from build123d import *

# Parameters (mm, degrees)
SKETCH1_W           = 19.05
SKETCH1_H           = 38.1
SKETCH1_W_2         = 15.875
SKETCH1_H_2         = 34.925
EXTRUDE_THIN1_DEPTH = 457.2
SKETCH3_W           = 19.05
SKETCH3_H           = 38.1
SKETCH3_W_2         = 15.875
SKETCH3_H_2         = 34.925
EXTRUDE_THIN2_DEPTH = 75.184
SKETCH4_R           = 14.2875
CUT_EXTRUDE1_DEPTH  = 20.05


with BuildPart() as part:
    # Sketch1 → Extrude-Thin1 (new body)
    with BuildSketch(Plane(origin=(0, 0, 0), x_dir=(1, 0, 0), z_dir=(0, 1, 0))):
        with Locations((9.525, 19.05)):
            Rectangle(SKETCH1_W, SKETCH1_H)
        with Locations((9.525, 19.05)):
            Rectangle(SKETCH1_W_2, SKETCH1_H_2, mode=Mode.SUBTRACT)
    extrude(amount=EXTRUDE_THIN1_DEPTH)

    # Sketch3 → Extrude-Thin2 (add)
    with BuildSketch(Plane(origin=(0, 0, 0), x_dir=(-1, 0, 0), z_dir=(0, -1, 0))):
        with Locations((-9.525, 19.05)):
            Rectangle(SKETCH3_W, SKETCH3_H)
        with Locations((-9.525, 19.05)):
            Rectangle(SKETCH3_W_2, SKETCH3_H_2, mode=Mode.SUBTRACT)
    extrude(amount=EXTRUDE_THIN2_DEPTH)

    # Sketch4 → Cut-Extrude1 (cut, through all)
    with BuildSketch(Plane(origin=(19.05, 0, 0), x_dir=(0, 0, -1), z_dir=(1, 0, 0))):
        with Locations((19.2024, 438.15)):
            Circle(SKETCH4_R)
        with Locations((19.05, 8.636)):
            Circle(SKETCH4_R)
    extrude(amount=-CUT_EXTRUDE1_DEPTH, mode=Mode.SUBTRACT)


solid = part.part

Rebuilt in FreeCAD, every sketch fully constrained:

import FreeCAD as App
import Part
import Sketcher

V = App.Vector
Q = App.Units.Quantity

doc = App.newDocument("Part")
body = doc.addObject("PartDesign::Body", "Body")

# Sketch on XZ plane
sketch1 = doc.addObject("Sketcher::SketchObject", "Sketch")
body.addObject(sketch1)
sketch1.AttachmentSupport = (doc.XZ_Plane, [""])
sketch1.MapMode = "FlatFace"
sketch1.addGeometry(Part.LineSegment(V(0, -38, 0), V(0, 0, 0)), False)
sketch1.addGeometry(Part.LineSegment(V(0, 0, 0), V(19, 0, 0)), False)
sketch1.addGeometry(Part.LineSegment(V(19, 0, 0), V(19, -38, 0)), False)
sketch1.addGeometry(Part.LineSegment(V(19, -38, 0), V(0, -38, 0)), False)
sketch1.addGeometry(Part.LineSegment(V(17, -2, 0), V(2, -2, 0)), False)
sketch1.addGeometry(Part.LineSegment(V(2, -2, 0), V(2, -37, 0)), False)
sketch1.addGeometry(Part.LineSegment(V(2, -37, 0), V(17, -37, 0)), False)
sketch1.addGeometry(Part.LineSegment(V(17, -37, 0), V(17, -2, 0)), False)
sketch1.addConstraint(Sketcher.Constraint("Coincident", 0, 2, 1, 1))
sketch1.addConstraint(Sketcher.Constraint("Coincident", 1, 2, 2, 1))
sketch1.addConstraint(Sketcher.Constraint("Coincident", 2, 2, 3, 1))
sketch1.addConstraint(Sketcher.Constraint("Coincident", 3, 2, 0, 1))
sketch1.addConstraint(Sketcher.Constraint("Coincident", 4, 2, 5, 1))
sketch1.addConstraint(Sketcher.Constraint("Coincident", 5, 2, 6, 1))
sketch1.addConstraint(Sketcher.Constraint("Coincident", 6, 2, 7, 1))
sketch1.addConstraint(Sketcher.Constraint("Coincident", 7, 2, 4, 1))
sketch1.addConstraint(Sketcher.Constraint("Vertical", 0))
sketch1.addConstraint(Sketcher.Constraint("Horizontal", 1))
sketch1.addConstraint(Sketcher.Constraint("Vertical", 2))
sketch1.addConstraint(Sketcher.Constraint("Horizontal", 3))
sketch1.addConstraint(Sketcher.Constraint("Horizontal", 4))
sketch1.addConstraint(Sketcher.Constraint("Vertical", 5))
sketch1.addConstraint(Sketcher.Constraint("Horizontal", 6))
sketch1.addConstraint(Sketcher.Constraint("Vertical", 7))
sketch1.addConstraint(Sketcher.Constraint("Coincident", 0, 2, -1, 1))
sketch1.addConstraint(Sketcher.Constraint("DistanceY", 0, 1, 0, 2, Q("1.5 in")))
sketch1.addConstraint(Sketcher.Constraint("DistanceX", 1, 1, 1, 2, Q("0.75 in")))
sketch1.addConstraint(Sketcher.Constraint("DistanceX", 4, 2, 4, 1, Q("0.625 in")))
sketch1.addConstraint(Sketcher.Constraint("DistanceY", 5, 2, 5, 1, Q("1.375 in")))
sketch1.addConstraint(Sketcher.Constraint("DistanceX", -1, 1, 4, 2, Q("0.0625 in")))
sketch1.addConstraint(Sketcher.Constraint("DistanceY", 4, 2, -1, 1, Q("0.0625 in")))
pad1 = doc.addObject("PartDesign::Pad", "Pad")
body.addObject(pad1)
pad1.Profile = sketch1
pad1.Length = Q("18 in")
pad1.Reversed = True

# Sketch on XZ plane
sketch2 = doc.addObject("Sketcher::SketchObject", "Sketch001")
body.addObject(sketch2)
sketch2.AttachmentSupport = (doc.XZ_Plane, [""])
sketch2.MapMode = "FlatFace"
sketch2.addGeometry(Part.LineSegment(V(19, -38, 0), V(19, 0, 0)), False)
sketch2.addGeometry(Part.LineSegment(V(19, 0, 0), V(0, 0, 0)), False)
sketch2.addGeometry(Part.LineSegment(V(0, 0, 0), V(0, -38, 0)), False)
sketch2.addGeometry(Part.LineSegment(V(0, -38, 0), V(19, -38, 0)), False)
sketch2.addGeometry(Part.LineSegment(V(2, -2, 0), V(17, -2, 0)), False)
sketch2.addGeometry(Part.LineSegment(V(17, -2, 0), V(17, -37, 0)), False)
sketch2.addGeometry(Part.LineSegment(V(17, -37, 0), V(2, -37, 0)), False)
sketch2.addGeometry(Part.LineSegment(V(2, -37, 0), V(2, -2, 0)), False)
sketch2.addConstraint(Sketcher.Constraint("Coincident", 0, 2, 1, 1))
sketch2.addConstraint(Sketcher.Constraint("Coincident", 1, 2, 2, 1))
sketch2.addConstraint(Sketcher.Constraint("Coincident", 2, 2, 3, 1))
sketch2.addConstraint(Sketcher.Constraint("Coincident", 3, 2, 0, 1))
sketch2.addConstraint(Sketcher.Constraint("Coincident", 4, 2, 5, 1))
sketch2.addConstraint(Sketcher.Constraint("Coincident", 5, 2, 6, 1))
sketch2.addConstraint(Sketcher.Constraint("Coincident", 6, 2, 7, 1))
sketch2.addConstraint(Sketcher.Constraint("Coincident", 7, 2, 4, 1))
sketch2.addConstraint(Sketcher.Constraint("Vertical", 0))
sketch2.addConstraint(Sketcher.Constraint("Horizontal", 1))
sketch2.addConstraint(Sketcher.Constraint("Vertical", 2))
sketch2.addConstraint(Sketcher.Constraint("Horizontal", 3))
sketch2.addConstraint(Sketcher.Constraint("Horizontal", 4))
sketch2.addConstraint(Sketcher.Constraint("Vertical", 5))
sketch2.addConstraint(Sketcher.Constraint("Horizontal", 6))
sketch2.addConstraint(Sketcher.Constraint("Vertical", 7))
sketch2.addConstraint(Sketcher.Constraint("Coincident", 1, 2, -1, 1))
sketch2.addConstraint(Sketcher.Constraint("DistanceY", 0, 1, 0, 2, Q("1.5 in")))
sketch2.addConstraint(Sketcher.Constraint("DistanceX", 1, 2, 1, 1, Q("0.75 in")))
sketch2.addConstraint(Sketcher.Constraint("DistanceX", 4, 1, 4, 2, Q("0.625 in")))
sketch2.addConstraint(Sketcher.Constraint("DistanceY", 5, 2, 5, 1, Q("1.375 in")))
sketch2.addConstraint(Sketcher.Constraint("DistanceX", -1, 1, 4, 2, Q("0.6875 in")))
sketch2.addConstraint(Sketcher.Constraint("DistanceY", 4, 2, -1, 1, Q("0.0625 in")))
pad2 = doc.addObject("PartDesign::Pad", "Pad001")
body.addObject(pad2)
pad2.Profile = sketch2
pad2.Length = Q("2.96 in")

# Sketch on YZ plane
sketch3 = doc.addObject("Sketcher::SketchObject", "Sketch002")
body.addObject(sketch3)
sketch3.AttachmentSupport = (doc.YZ_Plane, [""])
sketch3.MapMode = "FlatFace"
sketch3.AttachmentOffset = App.Placement(V(0, 0, 0.75 * 25.4), App.Rotation())
sketch3.addGeometry(Part.Circle(V(438, -19, 0), V(0, 0, 1), 14), False)
sketch3.addGeometry(Part.Circle(V(9, -19, 0), V(0, 0, 1), 14), False)
sketch3.addConstraint(Sketcher.Constraint("Equal", 0, 1))
sketch3.addConstraint(Sketcher.Constraint("Diameter", 0, Q("1.125 in")))
sketch3.addConstraint(Sketcher.Constraint("DistanceX", -1, 1, 0, 3, Q("17.25 in")))
sketch3.addConstraint(Sketcher.Constraint("DistanceX", -1, 1, 1, 3, Q("0.34 in")))
sketch3.addConstraint(Sketcher.Constraint("DistanceY", 1, 3, -1, 1, Q("0.75 in")))
sketch3.addConstraint(Sketcher.Constraint("DistanceY", 0, 3, -1, 1, Q("0.756 in")))
pocket1 = doc.addObject("PartDesign::Pocket", "Pocket")
body.addObject(pocket1)
pocket1.Profile = sketch3
pocket1.Type = "ThroughAll"

doc.recompute()
